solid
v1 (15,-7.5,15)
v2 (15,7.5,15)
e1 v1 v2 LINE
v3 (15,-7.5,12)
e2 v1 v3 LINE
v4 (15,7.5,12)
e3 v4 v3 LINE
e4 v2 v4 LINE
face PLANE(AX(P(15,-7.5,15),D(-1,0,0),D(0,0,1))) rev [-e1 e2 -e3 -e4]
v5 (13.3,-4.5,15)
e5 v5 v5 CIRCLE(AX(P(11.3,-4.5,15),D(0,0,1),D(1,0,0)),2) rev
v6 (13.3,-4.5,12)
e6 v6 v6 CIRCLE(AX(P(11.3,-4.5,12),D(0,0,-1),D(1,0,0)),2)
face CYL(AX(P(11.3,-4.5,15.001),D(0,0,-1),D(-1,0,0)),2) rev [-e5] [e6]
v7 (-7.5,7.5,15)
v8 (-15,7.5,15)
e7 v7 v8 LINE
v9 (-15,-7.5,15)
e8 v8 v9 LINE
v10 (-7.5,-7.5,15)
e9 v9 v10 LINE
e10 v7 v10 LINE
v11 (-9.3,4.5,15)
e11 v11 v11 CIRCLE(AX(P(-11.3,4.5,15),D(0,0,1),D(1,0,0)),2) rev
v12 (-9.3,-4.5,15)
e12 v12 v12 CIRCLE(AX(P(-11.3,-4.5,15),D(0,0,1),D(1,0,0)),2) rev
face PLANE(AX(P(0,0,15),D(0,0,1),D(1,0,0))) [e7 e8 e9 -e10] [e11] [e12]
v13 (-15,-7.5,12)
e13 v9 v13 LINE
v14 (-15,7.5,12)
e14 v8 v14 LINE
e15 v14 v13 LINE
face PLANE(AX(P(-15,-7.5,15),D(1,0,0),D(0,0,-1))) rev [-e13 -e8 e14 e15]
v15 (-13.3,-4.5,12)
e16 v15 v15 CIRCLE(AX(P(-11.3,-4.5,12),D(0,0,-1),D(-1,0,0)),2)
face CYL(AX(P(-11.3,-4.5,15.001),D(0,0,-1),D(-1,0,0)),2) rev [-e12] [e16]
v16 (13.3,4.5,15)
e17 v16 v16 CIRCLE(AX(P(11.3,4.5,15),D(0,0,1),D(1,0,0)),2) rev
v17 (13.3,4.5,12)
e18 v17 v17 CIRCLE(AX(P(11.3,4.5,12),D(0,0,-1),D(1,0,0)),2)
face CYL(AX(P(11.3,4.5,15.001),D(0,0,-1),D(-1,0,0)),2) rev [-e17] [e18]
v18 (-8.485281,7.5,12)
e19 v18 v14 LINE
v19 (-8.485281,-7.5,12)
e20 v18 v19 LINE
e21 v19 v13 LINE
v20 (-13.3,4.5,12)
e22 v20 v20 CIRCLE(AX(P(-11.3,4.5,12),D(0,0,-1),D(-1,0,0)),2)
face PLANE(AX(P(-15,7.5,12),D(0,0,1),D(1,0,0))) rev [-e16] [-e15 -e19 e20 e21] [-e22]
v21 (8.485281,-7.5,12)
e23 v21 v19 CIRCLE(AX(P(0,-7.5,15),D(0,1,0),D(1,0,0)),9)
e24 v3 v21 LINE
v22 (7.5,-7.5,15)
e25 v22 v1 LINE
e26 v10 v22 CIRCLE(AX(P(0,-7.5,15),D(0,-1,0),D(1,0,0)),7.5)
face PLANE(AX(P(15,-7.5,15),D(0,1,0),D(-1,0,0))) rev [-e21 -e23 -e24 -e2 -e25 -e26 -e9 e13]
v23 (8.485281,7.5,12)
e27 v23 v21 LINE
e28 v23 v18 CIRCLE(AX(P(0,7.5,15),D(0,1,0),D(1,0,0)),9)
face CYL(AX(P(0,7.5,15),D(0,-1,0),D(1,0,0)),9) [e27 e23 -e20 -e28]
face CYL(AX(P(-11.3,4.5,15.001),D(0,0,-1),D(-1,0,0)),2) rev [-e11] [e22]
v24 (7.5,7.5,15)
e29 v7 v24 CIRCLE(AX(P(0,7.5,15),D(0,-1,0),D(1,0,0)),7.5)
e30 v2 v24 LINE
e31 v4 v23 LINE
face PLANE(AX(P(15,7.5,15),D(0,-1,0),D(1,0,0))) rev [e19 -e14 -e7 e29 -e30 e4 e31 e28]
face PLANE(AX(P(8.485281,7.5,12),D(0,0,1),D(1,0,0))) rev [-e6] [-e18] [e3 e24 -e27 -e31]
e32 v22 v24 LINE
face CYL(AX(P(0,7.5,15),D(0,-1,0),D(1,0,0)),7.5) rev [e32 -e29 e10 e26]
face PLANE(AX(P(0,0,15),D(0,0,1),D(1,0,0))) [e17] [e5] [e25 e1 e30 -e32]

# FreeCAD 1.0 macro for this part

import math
import FreeCAD as App
import Part
import Sketcher

V = App.Vector

doc = App.newDocument("Part")
params = doc.addObject("Spreadsheet::Sheet", "Params")
for row, (alias, value) in enumerate([
    ("sketch1_width", "30 mm"),
    ("sketch1_height", "15 mm"),
    ("pad1_length", "15 mm"),
    ("sketch2_diameter", "15 mm"),
    ("sketch2_radius", "9 mm"),
    ("sketch2_width", "30 mm"),
    ("sketch2_height", "12 mm"),
    ("pocket1_length", "15 mm"),
    ("sketch3_diameter", "4 mm"),
    ("sketch4_diameter", "4 mm"),
    ("sketch5_diameter", "4 mm"),
    ("sketch6_diameter", "4 mm"),
], start=1):
    params.set(f"A{row}", alias)
    params.set(f"B{row}", "=" + value)
    params.setAlias(f"B{row}", alias)

body = doc.addObject("PartDesign::Body", "Body")

sketch1 = body.newObject("Sketcher::SketchObject", "Sketch")
sketch1.AttachmentSupport = (doc.getObject("XY_Plane"), [""])
sketch1.MapMode = "FlatFace"
sketch1.addGeometry(Part.LineSegment(V(-15, 8, 0), V(-15, -8, 0)), False)
sketch1.addGeometry(Part.LineSegment(V(-15, -8, 0), V(15, -8, 0)), False)
sketch1.addGeometry(Part.LineSegment(V(15, -8, 0), V(15, 8, 0)), False)
sketch1.addGeometry(Part.LineSegment(V(15, 8, 0), V(-15, 8, 0)), False)
sketch1.addConstraint(Sketcher.Constraint("Coincident", 0, 2, 1, 1))
sketch1.addConstraint(Sketcher.Constraint("Coincident", 1, 2, 2, 1))
sketch1.addConstraint(Sketcher.Constraint("Coincident", 2, 2, 3, 1))
sketch1.addConstraint(Sketcher.Constraint("Coincident", 3, 2, 0, 1))
sketch1.addConstraint(Sketcher.Constraint("Vertical", 0))
sketch1.addConstraint(Sketcher.Constraint("Horizontal", 1))
sketch1.addConstraint(Sketcher.Constraint("Vertical", 2))
sketch1.addConstraint(Sketcher.Constraint("Horizontal", 3))
sketch1.addConstraint(Sketcher.Constraint("Symmetric", 0, 2, 2, 2, -1, 1))
sketch1.addConstraint(Sketcher.Constraint("DistanceX", 1, 1, 1, 2, 30.0))
sketch1.addConstraint(Sketcher.Constraint("DistanceY", 0, 2, 0, 1, 15.0))
sketch1.setExpression("Constraints[9]", "Params.sketch1_width")
sketch1.setExpression("Constraints[10]", "Params.sketch1_height")
pad1 = body.newObject("PartDesign::Pad", "Pad")
pad1.Profile = sketch1
pad1.setExpression("Length", "Params.pad1_length")

sketch2 = body.newObject("Sketcher::SketchObject", "Sketch001")
sketch2.AttachmentSupport = (doc.getObject("XZ_Plane"), [""])
sketch2.MapMode = "FlatFace"
sketch2.AttachmentOffset = App.Placement(V(0, 0, 7.5), App.Rotation())
sketch2.addGeometry(Part.Circle(V(0, 15, 0), V(0, 0, 1), 8), False)
sketch2.addGeometry(Part.LineSegment(V(-8, 12, 0), V(-15, 12, 0)), False)
sketch2.addGeometry(Part.LineSegment(V(-15, 12, 0), V(-15, 0, 0)), False)
sketch2.addGeometry(Part.LineSegment(V(-15, 0, 0), V(15, 0, 0)), False)
sketch2.addGeometry(Part.LineSegment(V(15, 0, 0), V(15, 12, 0)), False)
sketch2.addGeometry(Part.LineSegment(V(15, 12, 0), V(8, 12, 0)), False)
sketch2.addGeometry(Part.ArcOfCircle(Part.Circle(V(0, 15, 0), V(0, 0, 1), 9), math.radians(-161), math.radians(-19)), False)
sketch2.addConstraint(Sketcher.Constraint("Coincident", 1, 2, 2, 1))
sketch2.addConstraint(Sketcher.Constraint("Coincident", 2, 2, 3, 1))
sketch2.addConstraint(Sketcher.Constraint("Coincident", 3, 2, 4, 1))
sketch2.addConstraint(Sketcher.Constraint("Coincident", 4, 2, 5, 1))
sketch2.addConstraint(Sketcher.Constraint("Coincident", 5, 2, 6, 2))
sketch2.addConstraint(Sketcher.Constraint("Coincident", 6, 1, 1, 1))
sketch2.addConstraint(Sketcher.Constraint("Horizontal", 1))
sketch2.addConstraint(Sketcher.Constraint("Vertical", 2))
sketch2.addConstraint(Sketcher.Constraint("Horizontal", 3))
sketch2.addConstraint(Sketcher.Constraint("Vertical", 4))
sketch2.addConstraint(Sketcher.Constraint("Horizontal", 5))
sketch2.addConstraint(Sketcher.Constraint("Coincident", 6, 3, 0, 3))
sketch2.addConstraint(Sketcher.Constraint("Symmetric", 2, 2, 3, 2, -1, 1))
sketch2.addConstraint(Sketcher.Constraint("Symmetric", 5, 2, 6, 1, -2))
sketch2.addConstraint(Sketcher.Constraint("Diameter", 0, 15.0))
sketch2.addConstraint(Sketcher.Constraint("Radius", 6, 9.0))
sketch2.addConstraint(Sketcher.Constraint("DistanceX", 3, 1, 3, 2, 30.0))
sketch2.addConstraint(Sketcher.Constraint("DistanceY", 2, 2, 2, 1, 12.0))
sketch2.addConstraint(Sketcher.Constraint("DistanceY", -1, 1, 0, 3, 15.0))
sketch2.setExpression("Constraints[14]", "Params.sketch2_diameter")
sketch2.setExpression("Constraints[15]", "Params.sketch2_radius")
sketch2.setExpression("Constraints[16]", "Params.sketch2_width")
sketch2.setExpression("Constraints[17]", "Params.sketch2_height")
pocket1 = body.newObject("PartDesign::Pocket", "Pocket")
pocket1.Profile = sketch2
pocket1.setExpression("Length", "Params.pocket1_length")

sketch3 = body.newObject("Sketcher::SketchObject", "Sketch002")
sketch3.AttachmentSupport = (doc.getObject("XY_Plane"), [""])
sketch3.MapMode = "FlatFace"
sketch3.AttachmentOffset = App.Placement(V(0, 0, 12), App.Rotation())
sketch3.addGeometry(Part.Circle(V(-11.3, -4.5, 0), V(0, 0, 1), 2), False)
sketch3.addConstraint(Sketcher.Constraint("Diameter", 0, 4.0))
sketch3.addConstraint(Sketcher.Constraint("DistanceX", 0, 3, -1, 1, 11.3))
sketch3.addConstraint(Sketcher.Constraint("DistanceY", 0, 3, -1, 1, 4.5))
sketch3.setExpression("Constraints[0]", "Params.sketch3_diameter")
pocket2 = body.newObject("PartDesign::Pocket", "Pocket001")
pocket2.Profile = sketch3
pocket2.Type = "UpToFirst"
pocket2.Reversed = True

sketch4 = body.newObject("Sketcher::SketchObject", "Sketch003")
sketch4.AttachmentSupport = (doc.getObject("XY_Plane"), [""])
sketch4.MapMode = "FlatFace"
sketch4.AttachmentOffset = App.Placement(V(0, 0, 12), App.Rotation())
sketch4.addGeometry(Part.Circle(V(-11.3, 4.5, 0), V(0, 0, 1), 2), False)
sketch4.addConstraint(Sketcher.Constraint("Diameter", 0, 4.0))
sketch4.addConstraint(Sketcher.Constraint("DistanceX", 0, 3, -1, 1, 11.3))
sketch4.addConstraint(Sketcher.Constraint("DistanceY", -1, 1, 0, 3, 4.5))
sketch4.setExpression("Constraints[0]", "Params.sketch4_diameter")
pocket3 = body.newObject("PartDesign::Pocket", "Pocket002")
pocket3.Profile = sketch4
pocket3.Type = "UpToFirst"
pocket3.Reversed = True

sketch5 = body.newObject("Sketcher::SketchObject", "Sketch004")
sketch5.AttachmentSupport = (doc.getObject("XY_Plane"), [""])
sketch5.MapMode = "FlatFace"
sketch5.AttachmentOffset = App.Placement(V(0, 0, 12), App.Rotation())
sketch5.addGeometry(Part.Circle(V(11.3, 4.5, 0), V(0, 0, 1), 2), False)
sketch5.addConstraint(Sketcher.Constraint("Diameter", 0, 4.0))
sketch5.addConstraint(Sketcher.Constraint("DistanceX", -1, 1, 0, 3, 11.3))
sketch5.addConstraint(Sketcher.Constraint("DistanceY", -1, 1, 0, 3, 4.5))
sketch5.setExpression("Constraints[0]", "Params.sketch5_diameter")
pocket4 = body.newObject("PartDesign::Pocket", "Pocket003")
pocket4.Profile = sketch5
pocket4.Type = "UpToFirst"
pocket4.Reversed = True

sketch6 = body.newObject("Sketcher::SketchObject", "Sketch005")
sketch6.AttachmentSupport = (doc.getObject("XY_Plane"), [""])
sketch6.MapMode = "FlatFace"
sketch6.AttachmentOffset = App.Placement(V(0, 0, 12), App.Rotation())
sketch6.addGeometry(Part.Circle(V(11.3, -4.5, 0), V(0, 0, 1), 2), False)
sketch6.addConstraint(Sketcher.Constraint("Diameter", 0, 4.0))
sketch6.addConstraint(Sketcher.Constraint("DistanceX", -1, 1, 0, 3, 11.3))
sketch6.addConstraint(Sketcher.Constraint("DistanceY", 0, 3, -1, 1, 4.5))
sketch6.setExpression("Constraints[0]", "Params.sketch6_diameter")
pocket5 = body.newObject("PartDesign::Pocket", "Pocket004")
pocket5.Profile = sketch6
pocket5.Type = "UpToFirst"
pocket5.Reversed = True

doc.recompute()
